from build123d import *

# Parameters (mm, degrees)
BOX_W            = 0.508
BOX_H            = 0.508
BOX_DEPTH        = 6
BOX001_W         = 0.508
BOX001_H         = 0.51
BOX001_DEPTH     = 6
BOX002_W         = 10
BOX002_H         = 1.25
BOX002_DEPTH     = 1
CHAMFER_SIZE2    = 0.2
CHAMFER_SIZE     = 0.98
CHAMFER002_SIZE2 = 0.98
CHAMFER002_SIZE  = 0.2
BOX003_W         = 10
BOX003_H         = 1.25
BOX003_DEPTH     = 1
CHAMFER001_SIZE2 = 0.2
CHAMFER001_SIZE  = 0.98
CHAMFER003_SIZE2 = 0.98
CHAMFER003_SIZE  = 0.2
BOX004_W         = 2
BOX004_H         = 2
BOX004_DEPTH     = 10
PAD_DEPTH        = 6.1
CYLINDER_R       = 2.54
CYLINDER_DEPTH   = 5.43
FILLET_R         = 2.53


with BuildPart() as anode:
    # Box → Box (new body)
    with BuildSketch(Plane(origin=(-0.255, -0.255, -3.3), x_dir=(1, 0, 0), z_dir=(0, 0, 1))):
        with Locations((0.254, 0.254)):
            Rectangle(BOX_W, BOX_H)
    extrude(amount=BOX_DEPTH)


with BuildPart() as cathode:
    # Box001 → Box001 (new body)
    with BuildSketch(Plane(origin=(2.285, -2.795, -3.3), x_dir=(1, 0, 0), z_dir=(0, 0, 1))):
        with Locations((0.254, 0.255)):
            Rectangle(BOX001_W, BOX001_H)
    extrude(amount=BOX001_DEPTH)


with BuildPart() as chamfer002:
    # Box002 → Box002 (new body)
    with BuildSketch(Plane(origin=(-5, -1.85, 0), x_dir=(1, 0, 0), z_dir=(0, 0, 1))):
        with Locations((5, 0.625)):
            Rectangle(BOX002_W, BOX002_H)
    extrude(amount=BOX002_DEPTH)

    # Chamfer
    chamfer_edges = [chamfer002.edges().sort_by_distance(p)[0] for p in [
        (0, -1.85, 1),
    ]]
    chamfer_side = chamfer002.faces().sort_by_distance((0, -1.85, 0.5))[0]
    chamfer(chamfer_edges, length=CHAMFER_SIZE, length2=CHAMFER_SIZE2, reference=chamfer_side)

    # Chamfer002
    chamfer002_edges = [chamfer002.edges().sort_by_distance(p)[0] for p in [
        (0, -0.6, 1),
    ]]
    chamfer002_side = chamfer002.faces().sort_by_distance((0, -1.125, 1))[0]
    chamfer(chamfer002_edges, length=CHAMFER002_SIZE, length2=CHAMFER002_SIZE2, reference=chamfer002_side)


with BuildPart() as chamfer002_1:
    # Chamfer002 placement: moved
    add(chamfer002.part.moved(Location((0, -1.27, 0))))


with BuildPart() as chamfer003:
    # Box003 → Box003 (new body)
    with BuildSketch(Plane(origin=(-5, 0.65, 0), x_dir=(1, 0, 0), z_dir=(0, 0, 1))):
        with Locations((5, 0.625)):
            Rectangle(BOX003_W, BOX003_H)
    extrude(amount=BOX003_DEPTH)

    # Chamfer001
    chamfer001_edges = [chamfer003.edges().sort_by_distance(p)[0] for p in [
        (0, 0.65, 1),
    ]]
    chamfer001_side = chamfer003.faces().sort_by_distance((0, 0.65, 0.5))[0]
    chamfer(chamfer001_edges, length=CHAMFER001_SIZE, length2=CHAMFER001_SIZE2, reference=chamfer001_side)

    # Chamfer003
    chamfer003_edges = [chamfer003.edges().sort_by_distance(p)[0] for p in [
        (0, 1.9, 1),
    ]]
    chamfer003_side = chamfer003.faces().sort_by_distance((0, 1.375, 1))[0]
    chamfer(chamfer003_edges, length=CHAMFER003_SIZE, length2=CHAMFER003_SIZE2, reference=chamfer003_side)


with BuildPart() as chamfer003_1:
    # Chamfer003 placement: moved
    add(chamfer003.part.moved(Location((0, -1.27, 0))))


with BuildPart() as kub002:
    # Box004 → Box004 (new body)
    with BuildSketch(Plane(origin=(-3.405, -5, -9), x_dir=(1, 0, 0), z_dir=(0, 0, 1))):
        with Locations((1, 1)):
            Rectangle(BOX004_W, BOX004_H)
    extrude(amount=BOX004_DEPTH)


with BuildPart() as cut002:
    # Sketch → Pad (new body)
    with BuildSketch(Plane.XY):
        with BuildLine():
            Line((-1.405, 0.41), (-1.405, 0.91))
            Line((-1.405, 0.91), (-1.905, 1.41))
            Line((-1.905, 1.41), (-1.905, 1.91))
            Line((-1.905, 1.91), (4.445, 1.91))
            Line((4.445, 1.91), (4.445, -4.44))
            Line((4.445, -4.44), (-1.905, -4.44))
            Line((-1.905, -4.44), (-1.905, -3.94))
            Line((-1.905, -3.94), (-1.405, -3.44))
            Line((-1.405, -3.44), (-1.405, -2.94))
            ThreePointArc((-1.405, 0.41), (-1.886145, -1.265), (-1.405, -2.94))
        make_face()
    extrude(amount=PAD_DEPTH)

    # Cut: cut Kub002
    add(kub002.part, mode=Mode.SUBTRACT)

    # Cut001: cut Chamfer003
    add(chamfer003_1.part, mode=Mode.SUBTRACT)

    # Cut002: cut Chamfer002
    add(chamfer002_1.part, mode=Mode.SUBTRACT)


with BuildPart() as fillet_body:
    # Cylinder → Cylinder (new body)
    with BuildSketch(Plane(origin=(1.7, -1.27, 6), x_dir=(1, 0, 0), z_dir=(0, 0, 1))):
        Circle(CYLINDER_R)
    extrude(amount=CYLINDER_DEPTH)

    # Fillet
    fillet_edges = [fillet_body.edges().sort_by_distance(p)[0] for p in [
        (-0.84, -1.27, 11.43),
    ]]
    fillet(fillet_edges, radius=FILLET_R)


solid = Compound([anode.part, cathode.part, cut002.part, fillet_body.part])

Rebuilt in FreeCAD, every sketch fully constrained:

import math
import FreeCAD as App
import Part
import Sketcher

V = App.Vector


def edges_at(feature, points):
    """Names of the edges that pass closest to the given points."""
    edges = feature.Shape.Edges
    near = lambda p: min(range(len(edges)), key=lambda i: edges[i].distToShape(Part.Vertex(*p))[0])
    return sorted({f"Edge{near(p) + 1}" for p in points})


def add_polygon(sketch, points):
    """Adds a closed chain of lines whose ends are joined by coincident constraints."""
    first, n = sketch.GeometryCount, len(points)
    for a, b in zip(points, points[1:] + points[:1]):
        sketch.addGeometry(Part.LineSegment(App.Vector(*a, 0), App.Vector(*b, 0)), False)
    for i in range(n):
        sketch.addConstraint(Sketcher.Constraint("Coincident", first + i, 2, first + (i + 1) % n, 1))

doc = App.newDocument("Part")
params = doc.addObject("Spreadsheet::Sheet", "Params")
for row, (alias, value) in enumerate([
    ("pad1_length", "6 mm"),
    ("sketch2_height", "0.51 mm"),
    ("pad2_length", "6 mm"),
    ("sketch3_width", "10 mm"),
    ("sketch3_height", "1.25 mm"),
    ("pad3_length", "1 mm"),
    ("chamfer_size", "0.98 mm"),
    ("chamfer_size2", "0.2 mm"),
    ("chamfer2_size", "0.2 mm"),
    ("chamfer2_size2", "0.98 mm"),
    ("sketch4_width", "10 mm"),
    ("sketch4_height", "1.25 mm"),
    ("pad4_length", "1 mm"),
    ("chamfer3_size", "0.98 mm"),
    ("chamfer3_size2", "0.2 mm"),
    ("chamfer4_size", "0.2 mm"),
    ("chamfer4_size2", "0.98 mm"),
    ("sketch5_width", "2 mm"),
    ("pad5_length", "10 mm"),
    ("sketch6_height", "0.5 mm"),
    ("sketch6_width", "6.35 mm"),
    ("pad6_length", "6.1 mm"),
    ("sketch7_diameter", "5.08 mm"),
    ("pad7_length", "5.43 mm"),
    ("fillet_radius", "2.53 mm"),
], start=1):
    params.set(f"A{row}", alias)
    params.set(f"B{row}", "=" + value)
    params.setAlias(f"B{row}", alias)

body = doc.addObject("PartDesign::Body", "Body")

# Sketch on XY plane
sketch1 = body.newObject("Sketcher::SketchObject", "Sketch")
sketch1.AttachmentSupport = (doc.getObject("XY_Plane"), [""])
sketch1.MapMode = "FlatFace"
sketch1.AttachmentOffset = App.Placement(V(0, 0, -3.3), App.Rotation())
add_polygon(sketch1, [(-0.3, 0.3), (-0.3, -0.3), (0.3, -0.3), (0.3, 0.3)])  # lines 0-3
sketch1.addConstraint(Sketcher.Constraint("Vertical", 0))
sketch1.addConstraint(Sketcher.Constraint("Horizontal", 1))
sketch1.addConstraint(Sketcher.Constraint("Vertical", 2))
sketch1.addConstraint(Sketcher.Constraint("Horizontal", 3))
sketch1.addConstraint(Sketcher.Constraint("Equal", 3, 0))
sketch1.addConstraint(Sketcher.Constraint("DistanceX", 1, 1, 1, 2, 0.508))
sketch1.addConstraint(Sketcher.Constraint("DistanceX", 0, 2, -1, 1, 0.255))
sketch1.addConstraint(Sketcher.Constraint("DistanceY", 0, 2, -1, 1, 0.255))
pad1 = body.newObject("PartDesign::Pad", "Pad")
pad1.Profile = sketch1
pad1.setExpression("Length", "Params.pad1_length")
body2 = doc.addObject("PartDesign::Body", "Body001")

# Sketch on XY plane
sketch2 = body2.newObject("Sketcher::SketchObject", "Sketch001")
sketch2.AttachmentSupport = (doc.getObject("XY_Plane001"), [""])
sketch2.MapMode = "FlatFace"
sketch2.AttachmentOffset = App.Placement(V(0, 0, -3.3), App.Rotation())
add_polygon(sketch2, [(2.3, -2.3), (2.3, -2.8), (2.8, -2.8), (2.8, -2.3)])  # lines 0-3
sketch2.addConstraint(Sketcher.Constraint("Vertical", 0))
sketch2.addConstraint(Sketcher.Constraint("Horizontal", 1))
sketch2.addConstraint(Sketcher.Constraint("Vertical", 2))
sketch2.addConstraint(Sketcher.Constraint("Horizontal", 3))
sketch2.addConstraint(Sketcher.Constraint("DistanceY", 0, 2, 0, 1, 0.51))
sketch2.addConstraint(Sketcher.Constraint("DistanceX", 1, 1, 1, 2, 0.508))
sketch2.addConstraint(Sketcher.Constraint("DistanceX", -1, 1, 0, 2, 2.285))
sketch2.addConstraint(Sketcher.Constraint("DistanceY", 0, 2, -1, 1, 2.795))
sketch2.setExpression("Constraints[8]", "Params.sketch2_height")
pad2 = body2.newObject("PartDesign::Pad", "Pad001")
pad2.Profile = sketch2
pad2.setExpression("Length", "Params.pad2_length")
body3 = doc.addObject("PartDesign::Body", "Body002")

# Sketch on XY plane
sketch3 = body3.newObject("Sketcher::SketchObject", "Sketch002")
sketch3.AttachmentSupport = (doc.getObject("XY_Plane002"), [""])
sketch3.MapMode = "FlatFace"
add_polygon(sketch3, [(-5, -0.6), (-5, -1.9), (5, -1.9), (5, -0.6)])  # lines 0-3
sketch3.addConstraint(Sketcher.Constraint("Vertical", 0))
sketch3.addConstraint(Sketcher.Constraint("Horizontal", 1))
sketch3.addConstraint(Sketcher.Constraint("Vertical", 2))
sketch3.addConstraint(Sketcher.Constraint("Horizontal", 3))
sketch3.addConstraint(Sketcher.Constraint("DistanceX", 1, 1, 1, 2, 10.0))
sketch3.addConstraint(Sketcher.Constraint("DistanceX", 0, 2, -1, 1, 5.0))
sketch3.addConstraint(Sketcher.Constraint("DistanceY", 0, 2, 0, 1, 1.25))
sketch3.addConstraint(Sketcher.Constraint("DistanceY", 2, 2, -1, 1, 0.6))
sketch3.setExpression("Constraints[8]", "Params.sketch3_width")
sketch3.setExpression("Constraints[10]", "Params.sketch3_height")
pad3 = body3.newObject("PartDesign::Pad", "Pad002")
pad3.Profile = sketch3
pad3.setExpression("Length", "Params.pad3_length")
doc.recompute()

chamfer = body3.newObject("PartDesign::Chamfer", "Chamfer")
chamfer.Base = (pad3, edges_at(pad3, [(0, -1.85, 1)]))
chamfer.ChamferType = "Two distances"
chamfer.setExpression("Size", "Params.chamfer_size")
chamfer.setExpression("Size2", "Params.chamfer_size2")
doc.recompute()

chamfer2 = body3.newObject("PartDesign::Chamfer", "Chamfer001")
chamfer2.Base = (chamfer, edges_at(chamfer, [(0, -0.6, 1)]))
chamfer2.ChamferType = "Two distances"
chamfer2.setExpression("Size", "Params.chamfer2_size")
chamfer2.setExpression("Size2", "Params.chamfer2_size2")
body4 = doc.addObject("PartDesign::Body", "Body003")
doc.recompute()

body3.Placement = App.Placement(V(0, -1.27, 0), App.Rotation(V(0, 0, 1), 0))
boolean = body4.newObject("PartDesign::Boolean", "Boolean")
boolean.Type = "Fuse"
boolean.addObjects([body3])
body5 = doc.addObject("PartDesign::Body", "Body004")

# Sketch on XY plane
sketch4 = body5.newObject("Sketcher::SketchObject", "Sketch003")
sketch4.AttachmentSupport = (doc.getObject("XY_Plane004"), [""])
sketch4.MapMode = "FlatFace"
add_polygon(sketch4, [(-5, 1.9), (-5, 0.7), (5, 0.7), (5, 1.9)])  # lines 0-3
sketch4.addConstraint(Sketcher.Constraint("Vertical", 0))
sketch4.addConstraint(Sketcher.Constraint("Horizontal", 1))
sketch4.addConstraint(Sketcher.Constraint("Vertical", 2))
sketch4.addConstraint(Sketcher.Constraint("Horizontal", 3))
sketch4.addConstraint(Sketcher.Constraint("DistanceX", 1, 1, 1, 2, 10.0))
sketch4.addConstraint(Sketcher.Constraint("DistanceX", 0, 2, -1, 1, 5.0))
sketch4.addConstraint(Sketcher.Constraint("DistanceY", 0, 2, 0, 1, 1.25))
sketch4.addConstraint(Sketcher.Constraint("DistanceY", -1, 1, 2, 2, 1.9))
sketch4.setExpression("Constraints[8]", "Params.sketch4_width")
sketch4.setExpression("Constraints[10]", "Params.sketch4_height")
pad4 = body5.newObject("PartDesign::Pad", "Pad003")
pad4.Profile = sketch4
pad4.setExpression("Length", "Params.pad4_length")
doc.recompute()

chamfer3 = body5.newObject("PartDesign::Chamfer", "Chamfer002")
chamfer3.Base = (pad4, edges_at(pad4, [(0, 0.65, 1)]))
chamfer3.ChamferType = "Two distances"
chamfer3.setExpression("Size", "Params.chamfer3_size")
chamfer3.setExpression("Size2", "Params.chamfer3_size2")
doc.recompute()

chamfer4 = body5.newObject("PartDesign::Chamfer", "Chamfer003")
chamfer4.Base = (chamfer3, edges_at(chamfer3, [(0, 1.9, 1)]))
chamfer4.ChamferType = "Two distances"
chamfer4.setExpression("Size", "Params.chamfer4_size")
chamfer4.setExpression("Size2", "Params.chamfer4_size2")
body6 = doc.addObject("PartDesign::Body", "Body005")
doc.recompute()

body5.Placement = App.Placement(V(0, -1.27, 0), App.Rotation(V(0, 0, 1), 0))
boolean2 = body6.newObject("PartDesign::Boolean", "Boolean001")
boolean2.Type = "Fuse"
boolean2.addObjects([body5])
body7 = doc.addObject("PartDesign::Body", "Body006")

# Sketch on XY plane
sketch5 = body7.newObject("Sketcher::SketchObject", "Sketch004")
sketch5.AttachmentSupport = (doc.getObject("XY_Plane006"), [""])
sketch5.MapMode = "FlatFace"
sketch5.AttachmentOffset = App.Placement(V(0, 0, -9), App.Rotation())
add_polygon(sketch5, [(-3.4, -3), (-3.4, -5), (-1.4, -5), (-1.4, -3)])  # lines 0-3
sketch5.addConstraint(Sketcher.Constraint("Vertical", 0))
sketch5.addConstraint(Sketcher.Constraint("Horizontal", 1))
sketch5.addConstraint(Sketcher.Constraint("Vertical", 2))
sketch5.addConstraint(Sketcher.Constraint("Horizontal", 3))
sketch5.addConstraint(Sketcher.Constraint("Equal", 3, 0))
sketch5.addConstraint(Sketcher.Constraint("DistanceX", 1, 1, 1, 2, 2.0))
sketch5.addConstraint(Sketcher.Constraint("DistanceY", 0, 2, -1, 1, 5.0))
sketch5.addConstraint(Sketcher.Constraint("DistanceX", 0, 2, -1, 1, 3.405))
sketch5.setExpression("Constraints[9]", "Params.sketch5_width")
pad5 = body7.newObject("PartDesign::Pad", "Pad004")
pad5.Profile = sketch5
pad5.setExpression("Length", "Params.pad5_length")
body8 = doc.addObject("PartDesign::Body", "Body007")

# Sketch on XY plane
sketch6 = body8.newObject("Sketcher::SketchObject", "Sketch005")
sketch6.AttachmentSupport = (doc.getObject("XY_Plane007"), [""])
sketch6.MapMode = "FlatFace"
sketch6.addGeometry(Part.LineSegment(V(-1.4, 0.9, 0), V(-1.4, 0.4, 0)), False)
sketch6.addGeometry(Part.ArcOfCircle(Part.Circle(V(1.3, -1.3, 0), V(0, 0, 1), 3.2), math.radians(148), math.radians(212)), False)
sketch6.addGeometry(Part.LineSegment(V(-1.4, -2.9, 0), V(-1.4, -3.4, 0)), False)
sketch6.addGeometry(Part.LineSegment(V(-1.4, -3.4, 0), V(-1.9, -3.9, 0)), False)
sketch6.addGeometry(Part.LineSegment(V(-1.9, -3.9, 0), V(-1.9, -4.4, 0)), False)
sketch6.addGeometry(Part.LineSegment(V(-1.9, -4.4, 0), V(4.4, -4.4, 0)), False)
sketch6.addGeometry(Part.LineSegment(V(4.4, -4.4, 0), V(4.4, 1.9, 0)), False)
sketch6.addGeometry(Part.LineSegment(V(4.4, 1.9, 0), V(-1.9, 1.9, 0)), False)
sketch6.addGeometry(Part.LineSegment(V(-1.9, 1.9, 0), V(-1.9, 1.4, 0)), False)
sketch6.addGeometry(Part.LineSegment(V(-1.9, 1.4, 0), V(-1.4, 0.9, 0)), False)
sketch6.addConstraint(Sketcher.Constraint("Coincident", 0, 2, 1, 1))
sketch6.addConstraint(Sketcher.Constraint("Coincident", 1, 2, 2, 1))
sketch6.addConstraint(Sketcher.Constraint("Coincident", 2, 2, 3, 1))
sketch6.addConstraint(Sketcher.Constraint("Coincident", 3, 2, 4, 1))
sketch6.addConstraint(Sketcher.Constraint("Coincident", 4, 2, 5, 1))
sketch6.addConstraint(Sketcher.Constraint("Coincident", 5, 2, 6, 1))
sketch6.addConstraint(Sketcher.Constraint("Coincident", 6, 2, 7, 1))
sketch6.addConstraint(Sketcher.Constraint("Coincident", 7, 2, 8, 1))
sketch6.addConstraint(Sketcher.Constraint("Coincident", 8, 2, 9, 1))
sketch6.addConstraint(Sketcher.Constraint("Coincident", 9, 2, 0, 1))
sketch6.addConstraint(Sketcher.Constraint("Vertical", 0))
sketch6.addConstraint(Sketcher.Constraint("Vertical", 2))
sketch6.addConstraint(Sketcher.Constraint("Vertical", 4))
sketch6.addConstraint(Sketcher.Constraint("Horizontal", 5))
sketch6.addConstraint(Sketcher.Constraint("Vertical", 6))
sketch6.addConstraint(Sketcher.Constraint("Horizontal", 7))
sketch6.addConstraint(Sketcher.Constraint("Vertical", 8))
sketch6.addConstraint(Sketcher.Constraint("Perpendicular", 3, 9))
sketch6.addConstraint(Sketcher.Constraint("Vertical", 0, 2, 1, 2))
sketch6.addConstraint(Sketcher.Constraint("Vertical", 4, 2, 7, 2))
sketch6.addConstraint(Sketcher.Constraint("Equal", 0, 2))
sketch6.addConstraint(Sketcher.Constraint("Equal", 2, 4))
sketch6.addConstraint(Sketcher.Constraint("Equal", 7, 6))
sketch6.addConstraint(Sketcher.Constraint("Equal", 4, 8))
sketch6.addConstraint(Sketcher.Constraint("Equal", 3, 9))
sketch6.addConstraint(Sketcher.Constraint("DistanceY", 0, 2, 0, 1, 0.5))
sketch6.addConstraint(Sketcher.Constraint("DistanceY", 3, 2, 1, 2, 1.0))
sketch6.addConstraint(Sketcher.Constraint("DistanceX", 5, 1, 5, 2, 6.35))
sketch6.addConstraint(Sketcher.Constraint("DistanceX", -1, 1, 1, 3, 1.269999))
sketch6.addConstraint(Sketcher.Constraint("DistanceY", -1, 1, 0, 2, 0.41))
sketch6.addConstraint(Sketcher.Constraint("DistanceX", 0, 2, -1, 1, 1.405))
sketch6.setExpression("Constraints[25]", "Params.sketch6_height")
sketch6.setExpression("Constraints[27]", "Params.sketch6_width")
pad6 = body8.newObject("PartDesign::Pad", "Pad005")
pad6.Profile = sketch6
pad6.setExpression("Length", "Params.pad6_length")
doc.recompute()

boolean3 = body8.newObject("PartDesign::Boolean", "Boolean002")
boolean3.Type = "Cut"
boolean3.addObjects([body7])
doc.recompute()

boolean4 = body8.newObject("PartDesign::Boolean", "Boolean003")
boolean4.Type = "Cut"
boolean4.addObjects([body6])
doc.recompute()

boolean5 = body8.newObject("PartDesign::Boolean", "Boolean004")
boolean5.Type = "Cut"
boolean5.addObjects([body4])
body9 = doc.addObject("PartDesign::Body", "Body008")

# Sketch on XY plane
sketch7 = body9.newObject("Sketcher::SketchObject", "Sketch006")
sketch7.AttachmentSupport = (doc.getObject("XY_Plane008"), [""])
sketch7.MapMode = "FlatFace"
sketch7.AttachmentOffset = App.Placement(V(0, 0, 6), App.Rotation())
sketch7.addGeometry(Part.Circle(V(1.7, -1.3, 0), V(0, 0, 1), 2.5), False)
sketch7.addConstraint(Sketcher.Constraint("Diameter", 0, 5.08))
sketch7.addConstraint(Sketcher.Constraint("DistanceX", -1, 1, 0, 3, 1.7))
sketch7.addConstraint(Sketcher.Constraint("DistanceY", 0, 3, -1, 1, 1.27))
sketch7.setExpression("Constraints[0]", "Params.sketch7_diameter")
pad7 = body9.newObject("PartDesign::Pad", "Pad006")
pad7.Profile = sketch7
pad7.setExpression("Length", "Params.pad7_length")
doc.recompute()

fillet = body9.newObject("PartDesign::Fillet", "Fillet")
fillet.Base = (pad7, edges_at(pad7, [(-0.84, -1.27, 11.43)]))
fillet.setExpression("Radius", "Params.fillet_radius")

doc.recompute()
